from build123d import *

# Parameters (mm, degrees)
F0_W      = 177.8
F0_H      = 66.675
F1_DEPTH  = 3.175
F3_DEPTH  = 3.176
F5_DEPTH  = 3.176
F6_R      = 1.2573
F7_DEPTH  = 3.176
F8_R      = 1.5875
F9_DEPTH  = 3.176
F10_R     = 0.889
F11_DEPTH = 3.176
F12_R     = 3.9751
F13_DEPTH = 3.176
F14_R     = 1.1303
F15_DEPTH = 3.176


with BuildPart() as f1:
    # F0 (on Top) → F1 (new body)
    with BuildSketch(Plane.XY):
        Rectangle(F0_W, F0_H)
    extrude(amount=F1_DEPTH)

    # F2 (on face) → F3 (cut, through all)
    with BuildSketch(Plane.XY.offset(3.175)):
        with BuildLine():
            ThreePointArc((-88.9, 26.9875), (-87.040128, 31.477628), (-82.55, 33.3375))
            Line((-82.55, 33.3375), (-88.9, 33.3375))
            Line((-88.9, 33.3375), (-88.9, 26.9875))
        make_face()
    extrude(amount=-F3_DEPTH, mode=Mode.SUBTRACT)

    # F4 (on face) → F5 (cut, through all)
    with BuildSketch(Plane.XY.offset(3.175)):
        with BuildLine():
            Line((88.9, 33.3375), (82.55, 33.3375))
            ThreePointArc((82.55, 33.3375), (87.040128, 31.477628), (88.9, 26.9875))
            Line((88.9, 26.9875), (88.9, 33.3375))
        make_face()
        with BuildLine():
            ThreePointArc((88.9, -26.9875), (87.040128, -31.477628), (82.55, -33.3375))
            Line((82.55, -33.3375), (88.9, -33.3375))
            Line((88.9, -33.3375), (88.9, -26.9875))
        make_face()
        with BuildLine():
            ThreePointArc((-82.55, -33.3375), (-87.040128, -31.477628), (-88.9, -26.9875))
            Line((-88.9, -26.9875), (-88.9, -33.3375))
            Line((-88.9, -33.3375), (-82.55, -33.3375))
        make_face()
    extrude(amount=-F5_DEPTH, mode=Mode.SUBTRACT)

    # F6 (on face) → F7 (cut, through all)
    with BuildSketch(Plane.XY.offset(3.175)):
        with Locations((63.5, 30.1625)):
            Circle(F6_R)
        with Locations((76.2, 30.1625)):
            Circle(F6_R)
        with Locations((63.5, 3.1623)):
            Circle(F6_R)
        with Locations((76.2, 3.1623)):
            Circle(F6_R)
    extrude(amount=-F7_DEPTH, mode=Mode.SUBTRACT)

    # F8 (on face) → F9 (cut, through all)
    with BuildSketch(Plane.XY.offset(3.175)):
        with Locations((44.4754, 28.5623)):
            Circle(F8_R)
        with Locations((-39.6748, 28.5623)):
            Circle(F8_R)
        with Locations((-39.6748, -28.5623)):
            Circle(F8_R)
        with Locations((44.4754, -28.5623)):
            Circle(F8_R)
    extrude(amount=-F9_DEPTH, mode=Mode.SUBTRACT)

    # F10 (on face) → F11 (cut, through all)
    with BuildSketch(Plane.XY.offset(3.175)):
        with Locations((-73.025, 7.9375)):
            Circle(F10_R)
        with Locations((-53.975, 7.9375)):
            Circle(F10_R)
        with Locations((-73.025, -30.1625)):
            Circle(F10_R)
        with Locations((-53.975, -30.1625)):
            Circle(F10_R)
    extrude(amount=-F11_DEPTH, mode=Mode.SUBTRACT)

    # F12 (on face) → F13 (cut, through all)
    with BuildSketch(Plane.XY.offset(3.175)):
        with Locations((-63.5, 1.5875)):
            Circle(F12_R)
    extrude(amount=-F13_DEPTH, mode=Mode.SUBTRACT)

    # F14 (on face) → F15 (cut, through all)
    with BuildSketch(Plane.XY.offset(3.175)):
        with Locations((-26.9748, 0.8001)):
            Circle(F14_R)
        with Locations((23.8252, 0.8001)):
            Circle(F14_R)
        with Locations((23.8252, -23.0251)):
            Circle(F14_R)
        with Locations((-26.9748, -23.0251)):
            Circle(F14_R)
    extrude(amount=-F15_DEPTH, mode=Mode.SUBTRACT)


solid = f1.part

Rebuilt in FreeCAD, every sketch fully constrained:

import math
import FreeCAD as App
import Part
import Sketcher
Q = App.Units.Quantity

doc = App.newDocument("Part")
body = doc.addObject("PartDesign::Body", "Body")

# Sketch on XY plane
sketch1 = doc.addObject("Sketcher::SketchObject", "Sketch")
body.addObject(sketch1)
sketch1.AttachmentSupport = (doc.XY_Plane, [""])
sketch1.MapMode = "FlatFace"
sketch1.addGeometry([
    Part.LineSegment(App.Vector(-89, 33, 0), App.Vector(-89, -33, 0)),
    Part.LineSegment(App.Vector(-89, -33, 0), App.Vector(89, -33, 0)),
    Part.LineSegment(App.Vector(89, -33, 0), App.Vector(89, 33, 0)),
    Part.LineSegment(App.Vector(89, 33, 0), App.Vector(-89, 33, 0)),
], False)
sketch1.addConstraint([
    Sketcher.Constraint("Coincident", 0, 2, 1, 1),
    Sketcher.Constraint("Coincident", 1, 2, 2, 1),
    Sketcher.Constraint("Coincident", 2, 2, 3, 1),
    Sketcher.Constraint("Coincident", 3, 2, 0, 1),
    Sketcher.Constraint("Vertical", 0),
    Sketcher.Constraint("Horizontal", 1),
    Sketcher.Constraint("Vertical", 2),
    Sketcher.Constraint("Horizontal", 3),
    Sketcher.Constraint("Symmetric", 0, 2, 2, 2, -1, 1),
    Sketcher.Constraint("DistanceX", 1, 1, 1, 2, Q("7 in")),
    Sketcher.Constraint("DistanceY", 0, 2, 0, 1, Q("2.625 in")),
])
pad1 = doc.addObject("PartDesign::Pad", "Pad")
body.addObject(pad1)
pad1.Profile = sketch1
pad1.Length = Q("0.125 in")

# Sketch on XY plane
sketch2 = doc.addObject("Sketcher::SketchObject", "Sketch001")
body.addObject(sketch2)
sketch2.AttachmentSupport = (doc.XY_Plane, [""])
sketch2.MapMode = "FlatFace"
sketch2.AttachmentOffset = App.Placement(App.Vector(0, 0, 0.125 * 25.4), App.Rotation())
sketch2.addGeometry([
    Part.ArcOfCircle(Part.Circle(App.Vector(-83, 27, 0), App.Vector(0, 0, 1), 6), math.radians(90), math.radians(180)),
    Part.LineSegment(App.Vector(-83, 33, 0), App.Vector(-89, 33, 0)),
    Part.LineSegment(App.Vector(-89, 33, 0), App.Vector(-89, 27, 0)),
], False)
sketch2.addConstraint([
    Sketcher.Constraint("Tangent", 0, 1, 1, 1),
    Sketcher.Constraint("Coincident", 1, 2, 2, 1),
    Sketcher.Constraint("Tangent", 2, 2, 0, 2),
    Sketcher.Constraint("Horizontal", 1),
    Sketcher.Constraint("Vertical", 2),
    Sketcher.Constraint("Radius", 0, Q("0.25 in")),
    Sketcher.Constraint("DistanceX", 1, 2, -1, 1, Q("3.5 in")),
    Sketcher.Constraint("DistanceY", -1, 1, 0, 3, Q("1.0625 in")),
])
pocket1 = doc.addObject("PartDesign::Pocket", "Pocket")
body.addObject(pocket1)
pocket1.Profile = sketch2
pocket1.Type = "ThroughAll"

# Sketch on XY plane
sketch3 = doc.addObject("Sketcher::SketchObject", "Sketch002")
body.addObject(sketch3)
sketch3.AttachmentSupport = (doc.XY_Plane, [""])
sketch3.MapMode = "FlatFace"
sketch3.AttachmentOffset = App.Placement(App.Vector(0, 0, 0.125 * 25.4), App.Rotation())
sketch3.addGeometry([
    Part.LineSegment(App.Vector(89, 33, 0), App.Vector(83, 33, 0)),  # 0
    Part.ArcOfCircle(Part.Circle(App.Vector(83, 27, 0), App.Vector(0, 0, 1), 6), math.radians(0), math.radians(90)),  # 1
    Part.LineSegment(App.Vector(89, 27, 0), App.Vector(89, 33, 0)),  # 2
    Part.ArcOfCircle(Part.Circle(App.Vector(83, -27, 0), App.Vector(0, 0, 1), 6), math.radians(-90), math.radians(0)),  # 3
    Part.LineSegment(App.Vector(83, -33, 0), App.Vector(89, -33, 0)),  # 4
    Part.LineSegment(App.Vector(89, -33, 0), App.Vector(89, -27, 0)),  # 5
    Part.ArcOfCircle(Part.Circle(App.Vector(-83, -27, 0), App.Vector(0, 0, 1), 6), math.radians(-180), math.radians(-90)),  # 6
    Part.LineSegment(App.Vector(-89, -27, 0), App.Vector(-89, -33, 0)),  # 7
    Part.LineSegment(App.Vector(-89, -33, 0), App.Vector(-83, -33, 0)),  # 8
], False)
sketch3.addConstraint([
    Sketcher.Constraint("Tangent", 0, 2, 1, 2),
    Sketcher.Constraint("Tangent", 1, 1, 2, 1),
    Sketcher.Constraint("Coincident", 2, 2, 0, 1),
    Sketcher.Constraint("Tangent", 3, 1, 4, 1),
    Sketcher.Constraint("Coincident", 4, 2, 5, 1),
    Sketcher.Constraint("Tangent", 5, 2, 3, 2),
    Sketcher.Constraint("Tangent", 6, 1, 7, 1),
    Sketcher.Constraint("Coincident", 7, 2, 8, 1),
    Sketcher.Constraint("Tangent", 8, 2, 6, 2),
    Sketcher.Constraint("Horizontal", 0),
    Sketcher.Constraint("Vertical", 2),
    Sketcher.Constraint("Horizontal", 4),
    Sketcher.Constraint("Vertical", 5),
    Sketcher.Constraint("Vertical", 7),
    Sketcher.Constraint("Horizontal", 8),
    Sketcher.Constraint("Equal", 1, 3),
    Sketcher.Constraint("Equal", 3, 6),
    Sketcher.Constraint("Symmetric", 1, 3, 6, 3, -1, 1),
    Sketcher.Constraint("Symmetric", 3, 3, 6, 3, -2),
    Sketcher.Constraint("Radius", 1, Q("0.25 in")),
    Sketcher.Constraint("DistanceX", 6, 1, 5, 2, Q("7 in")),
    Sketcher.Constraint("DistanceY", -1, 1, 1, 3, Q("1.0625 in")),
])
pocket2 = doc.addObject("PartDesign::Pocket", "Pocket001")
body.addObject(pocket2)
pocket2.Profile = sketch3
pocket2.Type = "ThroughAll"

# Sketch on XY plane
sketch4 = doc.addObject("Sketcher::SketchObject", "Sketch003")
body.addObject(sketch4)
sketch4.AttachmentSupport = (doc.XY_Plane, [""])
sketch4.MapMode = "FlatFace"
sketch4.AttachmentOffset = App.Placement(App.Vector(0, 0, 0.125 * 25.4), App.Rotation())
sketch4.addGeometry([
    Part.Circle(App.Vector(63.5, 30.2, 0), App.Vector(0, 0, 1), 1.3),
    Part.Circle(App.Vector(76.2, 30.2, 0), App.Vector(0, 0, 1), 1.3),
    Part.Circle(App.Vector(63.5, 3.2, 0), App.Vector(0, 0, 1), 1.3),
    Part.Circle(App.Vector(76.2, 3.2, 0), App.Vector(0, 0, 1), 1.3),
], False)
sketch4.addConstraint([
    Sketcher.Constraint("Equal", 0, 1),
    Sketcher.Constraint("Equal", 1, 2),
    Sketcher.Constraint("Equal", 2, 3),
    Sketcher.Constraint("Horizontal", 0, 3, 1, 3),
    Sketcher.Constraint("Horizontal", 2, 3, 3, 3),
    Sketcher.Constraint("Vertical", 0, 3, 2, 3),
    Sketcher.Constraint("Vertical", 1, 3, 3, 3),
    Sketcher.Constraint("Diameter", 0, Q("0.099 in")),
    Sketcher.Constraint("DistanceX", -1, 1, 1, 3, Q("3 in")),
    Sketcher.Constraint("DistanceX", -1, 1, 0, 3, Q("2.5 in")),
    Sketcher.Constraint("DistanceY", -1, 1, 0, 3, Q("1.1875 in")),
    Sketcher.Constraint("DistanceY", 2, 3, 0, 3, Q("1.063 in")),
])
pocket3 = doc.addObject("PartDesign::Pocket", "Pocket002")
body.addObject(pocket3)
pocket3.Profile = sketch4
pocket3.Type = "ThroughAll"

# Sketch on XY plane
sketch5 = doc.addObject("Sketcher::SketchObject", "Sketch004")
body.addObject(sketch5)
sketch5.AttachmentSupport = (doc.XY_Plane, [""])
sketch5.MapMode = "FlatFace"
sketch5.AttachmentOffset = App.Placement(App.Vector(0, 0, 0.125 * 25.4), App.Rotation())
sketch5.addGeometry([
    Part.Circle(App.Vector(44.5, 28.6, 0), App.Vector(0, 0, 1), 1.6),
    Part.Circle(App.Vector(-39.7, 28.6, 0), App.Vector(0, 0, 1), 1.6),
    Part.Circle(App.Vector(-39.7, -28.6, 0), App.Vector(0, 0, 1), 1.6),
    Part.Circle(App.Vector(44.5, -28.6, 0), App.Vector(0, 0, 1), 1.6),
], False)
sketch5.addConstraint([
    Sketcher.Constraint("Equal", 0, 1),
    Sketcher.Constraint("Equal", 1, 2),
    Sketcher.Constraint("Equal", 2, 3),
    Sketcher.Constraint("Symmetric", 1, 3, 2, 3, -1),
    Sketcher.Constraint("Symmetric", 0, 3, 3, 3, -1),
    Sketcher.Constraint("Horizontal", 0, 3, 1, 3),
    Sketcher.Constraint("Diameter", 0, Q("0.125 in")),
    Sketcher.Constraint("DistanceX", -1, 1, 0, 3, Q("1.751 in")),
    Sketcher.Constraint("DistanceX", 1, 3, -1, 1, Q("1.562 in")),
    Sketcher.Constraint("DistanceY", 2, 3, 1, 3, Q("2.249 in")),
])
pocket4 = doc.addObject("PartDesign::Pocket", "Pocket003")
body.addObject(pocket4)
pocket4.Profile = sketch5
pocket4.Type = "ThroughAll"

# Sketch on XY plane
sketch6 = doc.addObject("Sketcher::SketchObject", "Sketch005")
body.addObject(sketch6)
sketch6.AttachmentSupport = (doc.XY_Plane, [""])
sketch6.MapMode = "FlatFace"
sketch6.AttachmentOffset = App.Placement(App.Vector(0, 0, 0.125 * 25.4), App.Rotation())
sketch6.addGeometry([
    Part.Circle(App.Vector(-73, 7.9, 0), App.Vector(0, 0, 1), 0.9),
    Part.Circle(App.Vector(-54, 7.9, 0), App.Vector(0, 0, 1), 0.9),
    Part.Circle(App.Vector(-73, -30.2, 0), App.Vector(0, 0, 1), 0.9),
    Part.Circle(App.Vector(-54, -30.2, 0), App.Vector(0, 0, 1), 0.9),
], False)
sketch6.addConstraint([
    Sketcher.Constraint("Equal", 0, 1),
    Sketcher.Constraint("Equal", 1, 2),
    Sketcher.Constraint("Equal", 2, 3),
    Sketcher.Constraint("Horizontal", 0, 3, 1, 3),
    Sketcher.Constraint("Horizontal", 2, 3, 3, 3),
    Sketcher.Constraint("Vertical", 0, 3, 2, 3),
    Sketcher.Constraint("Vertical", 1, 3, 3, 3),
    Sketcher.Constraint("Diameter", 0, Q("0.07 in")),
    Sketcher.Constraint("DistanceY", 2, 3, 0, 3, Q("1.5 in")),
    Sketcher.Constraint("DistanceX", 0, 3, 1, 3, Q("0.75 in")),
    Sketcher.Constraint("DistanceX", 0, 3, -1, 1, Q("2.875 in")),
    Sketcher.Constraint("DistanceY", -1, 1, 0, 3, Q("0.3125 in")),
])
pocket5 = doc.addObject("PartDesign::Pocket", "Pocket004")
body.addObject(pocket5)
pocket5.Profile = sketch6
pocket5.Type = "ThroughAll"

# Sketch on XY plane
sketch7 = doc.addObject("Sketcher::SketchObject", "Sketch006")
body.addObject(sketch7)
sketch7.AttachmentSupport = (doc.XY_Plane, [""])
sketch7.MapMode = "FlatFace"
sketch7.AttachmentOffset = App.Placement(App.Vector(0, 0, 0.125 * 25.4), App.Rotation())
sketch7.addGeometry(Part.Circle(App.Vector(-63.5, 1.6, 0), App.Vector(0, 0, 1), 4), False)
sketch7.addConstraint([
    Sketcher.Constraint("Diameter", 0, Q("0.313 in")),
    Sketcher.Constraint("DistanceX", 0, 3, -1, 1, Q("2.5 in")),
    Sketcher.Constraint("DistanceY", -1, 1, 0, 3, Q("0.0625 in")),
])
pocket6 = doc.addObject("PartDesign::Pocket", "Pocket005")
body.addObject(pocket6)
pocket6.Profile = sketch7
pocket6.Type = "ThroughAll"

# Sketch on XY plane
sketch8 = doc.addObject("Sketcher::SketchObject", "Sketch007")
body.addObject(sketch8)
sketch8.AttachmentSupport = (doc.XY_Plane, [""])
sketch8.MapMode = "FlatFace"
sketch8.AttachmentOffset = App.Placement(App.Vector(0, 0, 0.125 * 25.4), App.Rotation())
sketch8.addGeometry([
    Part.Circle(App.Vector(-27, 0.8, 0), App.Vector(0, 0, 1), 1.1),
    Part.Circle(App.Vector(23.8, 0.8, 0), App.Vector(0, 0, 1), 1.1),
    Part.Circle(App.Vector(23.8, -23, 0), App.Vector(0, 0, 1), 1.1),
    Part.Circle(App.Vector(-27, -23, 0), App.Vector(0, 0, 1), 1.1),
], False)
sketch8.addConstraint([
    Sketcher.Constraint("Equal", 0, 1),
    Sketcher.Constraint("Equal", 1, 2),
    Sketcher.Constraint("Equal", 2, 3),
    Sketcher.Constraint("Horizontal", 0, 3, 1, 3),
    Sketcher.Constraint("Horizontal", 2, 3, 3, 3),
    Sketcher.Constraint("Vertical", 1, 3, 2, 3),
    Sketcher.Constraint("Vertical", 0, 3, 3, 3),
    Sketcher.Constraint("Diameter", 0, Q("0.089 in")),
    Sketcher.Constraint("DistanceX", 0, 3, 1, 3, Q("2 in")),
    Sketcher.Constraint("DistanceX", 0, 3, -1, 1, Q("1.062 in")),
    Sketcher.Constraint("DistanceY", 2, 3, 1, 3, Q("0.938 in")),
    Sketcher.Constraint("DistanceY", -1, 1, 0, 3, Q("0.0315 in")),
])
pocket7 = doc.addObject("PartDesign::Pocket", "Pocket006")
body.addObject(pocket7)
pocket7.Profile = sketch8
pocket7.Type = "ThroughAll"

doc.recompute()
